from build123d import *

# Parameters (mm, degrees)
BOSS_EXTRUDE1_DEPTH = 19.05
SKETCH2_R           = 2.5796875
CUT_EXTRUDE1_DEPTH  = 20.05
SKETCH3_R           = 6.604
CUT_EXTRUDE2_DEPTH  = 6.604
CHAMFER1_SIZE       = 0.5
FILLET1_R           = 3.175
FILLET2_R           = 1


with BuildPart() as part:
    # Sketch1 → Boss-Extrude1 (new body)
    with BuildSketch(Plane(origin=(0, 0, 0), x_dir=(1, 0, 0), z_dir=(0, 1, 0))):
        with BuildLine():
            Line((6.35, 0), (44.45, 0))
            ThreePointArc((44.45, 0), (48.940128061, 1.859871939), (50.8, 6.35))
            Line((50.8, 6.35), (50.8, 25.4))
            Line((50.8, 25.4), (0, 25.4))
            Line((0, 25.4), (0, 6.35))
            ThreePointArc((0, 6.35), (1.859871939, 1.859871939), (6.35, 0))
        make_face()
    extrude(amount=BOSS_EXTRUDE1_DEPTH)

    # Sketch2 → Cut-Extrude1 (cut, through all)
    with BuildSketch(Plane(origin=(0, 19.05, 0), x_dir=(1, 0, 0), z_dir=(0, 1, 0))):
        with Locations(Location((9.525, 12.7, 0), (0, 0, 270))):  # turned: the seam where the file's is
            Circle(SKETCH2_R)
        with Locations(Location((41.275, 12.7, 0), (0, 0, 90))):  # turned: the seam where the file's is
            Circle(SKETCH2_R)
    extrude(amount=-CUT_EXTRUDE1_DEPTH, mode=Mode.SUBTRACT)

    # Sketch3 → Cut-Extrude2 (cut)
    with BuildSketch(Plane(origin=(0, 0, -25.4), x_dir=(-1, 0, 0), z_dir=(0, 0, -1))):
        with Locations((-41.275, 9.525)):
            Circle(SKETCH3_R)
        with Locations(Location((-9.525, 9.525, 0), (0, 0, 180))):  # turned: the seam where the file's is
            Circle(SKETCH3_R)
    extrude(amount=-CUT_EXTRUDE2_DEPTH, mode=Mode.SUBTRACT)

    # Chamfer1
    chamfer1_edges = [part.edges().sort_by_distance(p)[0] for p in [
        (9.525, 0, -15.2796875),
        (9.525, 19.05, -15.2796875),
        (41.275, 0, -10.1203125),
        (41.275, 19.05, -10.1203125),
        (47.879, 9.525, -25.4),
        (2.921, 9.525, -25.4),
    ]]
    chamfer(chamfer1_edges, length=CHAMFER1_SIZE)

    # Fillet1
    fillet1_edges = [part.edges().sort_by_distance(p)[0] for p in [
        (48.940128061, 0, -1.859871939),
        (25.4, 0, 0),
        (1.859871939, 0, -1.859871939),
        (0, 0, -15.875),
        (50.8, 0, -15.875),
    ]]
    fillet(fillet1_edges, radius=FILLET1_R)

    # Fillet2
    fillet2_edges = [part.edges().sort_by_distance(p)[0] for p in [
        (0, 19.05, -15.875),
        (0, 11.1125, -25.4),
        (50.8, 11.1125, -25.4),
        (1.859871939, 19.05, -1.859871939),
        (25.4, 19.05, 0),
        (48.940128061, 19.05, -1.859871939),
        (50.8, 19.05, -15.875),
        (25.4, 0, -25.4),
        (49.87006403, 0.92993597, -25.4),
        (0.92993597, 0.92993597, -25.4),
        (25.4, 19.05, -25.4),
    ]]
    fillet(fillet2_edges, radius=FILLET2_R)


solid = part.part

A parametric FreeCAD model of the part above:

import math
import FreeCAD as App
import Part
import Sketcher
from FreeCAD import Vector
Q = App.Units.Quantity


def edges_at(feature, points):
    """Names of the edges that pass closest to the given points."""
    edges = feature.Shape.Edges
    near = lambda p: min(range(len(edges)), key=lambda i: edges[i].distToShape(Part.Vertex(*p))[0])
    return sorted({f"Edge{near(p) + 1}" for p in points})

doc = App.newDocument("Part")
params = doc.addObject("Spreadsheet::Sheet", "Params")
for row, (alias, value) in enumerate([
    ("sketch1_width", "2 in"),
    ("sketch1_radius", "0.25 in"),
    ("pad1_length", "0.75 in"),
    ("sketch2_diameter", "0.203125 in"),
    ("sketch3_diameter", "0.52 in"),
    ("pocket2_length", "0.26 in"),
    ("chamfer_size", "0.5 mm"),
    ("fillet_radius", "0.125 in"),
    ("fillet2_radius", "1 mm"),
], start=1):
    params.set(f"A{row}", alias)
    params.set(f"B{row}", "=" + value)
    params.setAlias(f"B{row}", alias)

body = doc.addObject("PartDesign::Body", "Body")

# Sketch on XZ plane
sketch1 = body.newObject("Sketcher::SketchObject", "Sketch")
sketch1.AttachmentSupport = (doc.getObject("XZ_Plane"), [""])
sketch1.MapMode = "FlatFace"
sketch1.addGeometry([
    Part.LineSegment(Vector(6.35, 0, 0), Vector(44.45, 0, 0)),  # 0
    Part.ArcOfCircle(Part.Circle(Vector(44.45, -6.35, 0), Vector(0, 0, 1), 6.35), math.radians(0), math.radians(90)),  # 1
    Part.LineSegment(Vector(50.8, -6.35, 0), Vector(50.8, -25.4, 0)),  # 2
    Part.LineSegment(Vector(50.8, -25.4, 0), Vector(0, -25.4, 0)),  # 3
    Part.LineSegment(Vector(0, -25.4, 0), Vector(0, -6.35, 0)),  # 4
    Part.ArcOfCircle(Part.Circle(Vector(6.35, -6.35, 0), Vector(0, 0, 1), 6.35), math.radians(90), math.radians(180)),  # 5
], False)
sketch1.addConstraint([
    Sketcher.Constraint("Tangent", 0, 2, 1, 2),
    Sketcher.Constraint("Tangent", 1, 1, 2, 1),
    Sketcher.Constraint("Coincident", 2, 2, 3, 1),
    Sketcher.Constraint("Coincident", 3, 2, 4, 1),
    Sketcher.Constraint("Tangent", 4, 2, 5, 2),
    Sketcher.Constraint("Tangent", 5, 1, 0, 1),
    Sketcher.Constraint("Horizontal", 0),
    Sketcher.Constraint("Vertical", 2),
    Sketcher.Constraint("Horizontal", 3),
    Sketcher.Constraint("Vertical", 4),
    Sketcher.Constraint("Equal", 1, 5),
    Sketcher.Constraint("PointOnObject", 0, 2, -1),
    Sketcher.Constraint("PointOnObject", 3, 2, -2),
    Sketcher.Constraint("DistanceX", 3, 2, 3, 1, Q("2 in")),
    Sketcher.Constraint("Radius", 1, Q("0.25 in")),
    Sketcher.Constraint("DistanceY", 2, 2, -1, 1, Q("1 in")),
])
sketch1.setExpression("Constraints[13]", "Params.sketch1_width")
sketch1.setExpression("Constraints[14]", "Params.sketch1_radius")
pad1 = body.newObject("PartDesign::Pad", "Pad")
pad1.Profile = sketch1
pad1.setExpression("Length", "Params.pad1_length")
pad1.Reversed = True

# Sketch on XZ plane
sketch2 = body.newObject("Sketcher::SketchObject", "Sketch001")
sketch2.AttachmentSupport = (doc.getObject("XZ_Plane"), [""])
sketch2.MapMode = "FlatFace"
sketch2.AttachmentOffset = App.Placement(Vector(0, 0, -0.75 * 25.4), App.Rotation())
sketch2.addGeometry([
    Part.Circle(Vector(9.525, -12.7, 0), Vector(0, 0, 1), 2.579687),
    Part.Circle(Vector(41.275, -12.7, 0), Vector(0, 0, 1), 2.579687),
], False)
sketch2.addConstraint([
    Sketcher.Constraint("Equal", 0, 1),
    Sketcher.Constraint("Horizontal", 0, 3, 1, 3),
    Sketcher.Constraint("Diameter", 0, Q("0.203125 in")),
    Sketcher.Constraint("DistanceY", 0, 3, -1, 1, Q("0.5 in")),
    Sketcher.Constraint("DistanceX", 0, 3, 1, 3, Q("1.25 in")),
    Sketcher.Constraint("DistanceX", -1, 1, 0, 3, Q("0.375 in")),
])
sketch2.setExpression("Constraints[2]", "Params.sketch2_diameter")
pocket1 = body.newObject("PartDesign::Pocket", "Pocket")
pocket1.Profile = sketch2
pocket1.Type = "ThroughAll"
pocket1.Reversed = True

# Sketch on XY plane
sketch3 = body.newObject("Sketcher::SketchObject", "Sketch002")
sketch3.AttachmentSupport = (doc.getObject("XY_Plane"), [""])
sketch3.MapMode = "FlatFace"
sketch3.AttachmentOffset = App.Placement(Vector(0, 0, -1 * 25.4), App.Rotation())
sketch3.addGeometry([
    Part.Circle(Vector(41.275, 9.525, 0), Vector(0, 0, 1), 6.604),
    Part.Circle(Vector(9.525, 9.525, 0), Vector(0, 0, 1), 6.604),
], False)
sketch3.addConstraint([
    Sketcher.Constraint("Equal", 0, 1),
    Sketcher.Constraint("Horizontal", 0, 3, 1, 3),
    Sketcher.Constraint("Diameter", 0, Q("0.52 in")),
    Sketcher.Constraint("DistanceX", 1, 3, 0, 3, Q("1.25 in")),
    Sketcher.Constraint("DistanceX", -1, 1, 0, 3, Q("1.625 in")),
    Sketcher.Constraint("DistanceY", -1, 1, 0, 3, Q("0.375 in")),
])
sketch3.setExpression("Constraints[2]", "Params.sketch3_diameter")
pocket2 = body.newObject("PartDesign::Pocket", "Pocket001")
pocket2.Profile = sketch3
pocket2.setExpression("Length", "Params.pocket2_length")
pocket2.Reversed = True
doc.recompute()

chamfer = body.newObject("PartDesign::Chamfer", "Chamfer")
chamfer.Base = (pocket2, edges_at(pocket2, [
    (9.525, 0, -15.28),
    (9.525, 19.05, -15.28),
    (41.275, 0, -10.12),
    (41.275, 19.05, -10.12),
    (47.879, 9.525, -25.4),
    (2.921, 9.525, -25.4),
]))
chamfer.setExpression("Size", "Params.chamfer_size")
doc.recompute()

fillet = body.newObject("PartDesign::Fillet", "Fillet")
fillet.Base = (chamfer, edges_at(chamfer, [
    (48.94, 0, -1.86),
    (25.4, 0, 0),
    (1.86, 0, -1.86),
    (0, 0, -15.875),
    (50.8, 0, -15.875),
]))
fillet.setExpression("Radius", "Params.fillet_radius")
doc.recompute()

fillet2 = body.newObject("PartDesign::Fillet", "Fillet001")
fillet2.Base = (fillet, edges_at(fillet, [
    (0, 19.05, -15.875),
    (0, 11.113, -25.4),
    (50.8, 11.113, -25.4),
    (1.86, 19.05, -1.86),
    (25.4, 19.05, 0),
    (48.94, 19.05, -1.86),
    (50.8, 19.05, -15.875),
    (25.4, 0, -25.4),
    (49.87, 0.93, -25.4),
    (0.93, 0.93, -25.4),
    (25.4, 19.05, -25.4),
]))
fillet2.setExpression("Radius", "Params.fillet2_radius")

doc.recompute()
